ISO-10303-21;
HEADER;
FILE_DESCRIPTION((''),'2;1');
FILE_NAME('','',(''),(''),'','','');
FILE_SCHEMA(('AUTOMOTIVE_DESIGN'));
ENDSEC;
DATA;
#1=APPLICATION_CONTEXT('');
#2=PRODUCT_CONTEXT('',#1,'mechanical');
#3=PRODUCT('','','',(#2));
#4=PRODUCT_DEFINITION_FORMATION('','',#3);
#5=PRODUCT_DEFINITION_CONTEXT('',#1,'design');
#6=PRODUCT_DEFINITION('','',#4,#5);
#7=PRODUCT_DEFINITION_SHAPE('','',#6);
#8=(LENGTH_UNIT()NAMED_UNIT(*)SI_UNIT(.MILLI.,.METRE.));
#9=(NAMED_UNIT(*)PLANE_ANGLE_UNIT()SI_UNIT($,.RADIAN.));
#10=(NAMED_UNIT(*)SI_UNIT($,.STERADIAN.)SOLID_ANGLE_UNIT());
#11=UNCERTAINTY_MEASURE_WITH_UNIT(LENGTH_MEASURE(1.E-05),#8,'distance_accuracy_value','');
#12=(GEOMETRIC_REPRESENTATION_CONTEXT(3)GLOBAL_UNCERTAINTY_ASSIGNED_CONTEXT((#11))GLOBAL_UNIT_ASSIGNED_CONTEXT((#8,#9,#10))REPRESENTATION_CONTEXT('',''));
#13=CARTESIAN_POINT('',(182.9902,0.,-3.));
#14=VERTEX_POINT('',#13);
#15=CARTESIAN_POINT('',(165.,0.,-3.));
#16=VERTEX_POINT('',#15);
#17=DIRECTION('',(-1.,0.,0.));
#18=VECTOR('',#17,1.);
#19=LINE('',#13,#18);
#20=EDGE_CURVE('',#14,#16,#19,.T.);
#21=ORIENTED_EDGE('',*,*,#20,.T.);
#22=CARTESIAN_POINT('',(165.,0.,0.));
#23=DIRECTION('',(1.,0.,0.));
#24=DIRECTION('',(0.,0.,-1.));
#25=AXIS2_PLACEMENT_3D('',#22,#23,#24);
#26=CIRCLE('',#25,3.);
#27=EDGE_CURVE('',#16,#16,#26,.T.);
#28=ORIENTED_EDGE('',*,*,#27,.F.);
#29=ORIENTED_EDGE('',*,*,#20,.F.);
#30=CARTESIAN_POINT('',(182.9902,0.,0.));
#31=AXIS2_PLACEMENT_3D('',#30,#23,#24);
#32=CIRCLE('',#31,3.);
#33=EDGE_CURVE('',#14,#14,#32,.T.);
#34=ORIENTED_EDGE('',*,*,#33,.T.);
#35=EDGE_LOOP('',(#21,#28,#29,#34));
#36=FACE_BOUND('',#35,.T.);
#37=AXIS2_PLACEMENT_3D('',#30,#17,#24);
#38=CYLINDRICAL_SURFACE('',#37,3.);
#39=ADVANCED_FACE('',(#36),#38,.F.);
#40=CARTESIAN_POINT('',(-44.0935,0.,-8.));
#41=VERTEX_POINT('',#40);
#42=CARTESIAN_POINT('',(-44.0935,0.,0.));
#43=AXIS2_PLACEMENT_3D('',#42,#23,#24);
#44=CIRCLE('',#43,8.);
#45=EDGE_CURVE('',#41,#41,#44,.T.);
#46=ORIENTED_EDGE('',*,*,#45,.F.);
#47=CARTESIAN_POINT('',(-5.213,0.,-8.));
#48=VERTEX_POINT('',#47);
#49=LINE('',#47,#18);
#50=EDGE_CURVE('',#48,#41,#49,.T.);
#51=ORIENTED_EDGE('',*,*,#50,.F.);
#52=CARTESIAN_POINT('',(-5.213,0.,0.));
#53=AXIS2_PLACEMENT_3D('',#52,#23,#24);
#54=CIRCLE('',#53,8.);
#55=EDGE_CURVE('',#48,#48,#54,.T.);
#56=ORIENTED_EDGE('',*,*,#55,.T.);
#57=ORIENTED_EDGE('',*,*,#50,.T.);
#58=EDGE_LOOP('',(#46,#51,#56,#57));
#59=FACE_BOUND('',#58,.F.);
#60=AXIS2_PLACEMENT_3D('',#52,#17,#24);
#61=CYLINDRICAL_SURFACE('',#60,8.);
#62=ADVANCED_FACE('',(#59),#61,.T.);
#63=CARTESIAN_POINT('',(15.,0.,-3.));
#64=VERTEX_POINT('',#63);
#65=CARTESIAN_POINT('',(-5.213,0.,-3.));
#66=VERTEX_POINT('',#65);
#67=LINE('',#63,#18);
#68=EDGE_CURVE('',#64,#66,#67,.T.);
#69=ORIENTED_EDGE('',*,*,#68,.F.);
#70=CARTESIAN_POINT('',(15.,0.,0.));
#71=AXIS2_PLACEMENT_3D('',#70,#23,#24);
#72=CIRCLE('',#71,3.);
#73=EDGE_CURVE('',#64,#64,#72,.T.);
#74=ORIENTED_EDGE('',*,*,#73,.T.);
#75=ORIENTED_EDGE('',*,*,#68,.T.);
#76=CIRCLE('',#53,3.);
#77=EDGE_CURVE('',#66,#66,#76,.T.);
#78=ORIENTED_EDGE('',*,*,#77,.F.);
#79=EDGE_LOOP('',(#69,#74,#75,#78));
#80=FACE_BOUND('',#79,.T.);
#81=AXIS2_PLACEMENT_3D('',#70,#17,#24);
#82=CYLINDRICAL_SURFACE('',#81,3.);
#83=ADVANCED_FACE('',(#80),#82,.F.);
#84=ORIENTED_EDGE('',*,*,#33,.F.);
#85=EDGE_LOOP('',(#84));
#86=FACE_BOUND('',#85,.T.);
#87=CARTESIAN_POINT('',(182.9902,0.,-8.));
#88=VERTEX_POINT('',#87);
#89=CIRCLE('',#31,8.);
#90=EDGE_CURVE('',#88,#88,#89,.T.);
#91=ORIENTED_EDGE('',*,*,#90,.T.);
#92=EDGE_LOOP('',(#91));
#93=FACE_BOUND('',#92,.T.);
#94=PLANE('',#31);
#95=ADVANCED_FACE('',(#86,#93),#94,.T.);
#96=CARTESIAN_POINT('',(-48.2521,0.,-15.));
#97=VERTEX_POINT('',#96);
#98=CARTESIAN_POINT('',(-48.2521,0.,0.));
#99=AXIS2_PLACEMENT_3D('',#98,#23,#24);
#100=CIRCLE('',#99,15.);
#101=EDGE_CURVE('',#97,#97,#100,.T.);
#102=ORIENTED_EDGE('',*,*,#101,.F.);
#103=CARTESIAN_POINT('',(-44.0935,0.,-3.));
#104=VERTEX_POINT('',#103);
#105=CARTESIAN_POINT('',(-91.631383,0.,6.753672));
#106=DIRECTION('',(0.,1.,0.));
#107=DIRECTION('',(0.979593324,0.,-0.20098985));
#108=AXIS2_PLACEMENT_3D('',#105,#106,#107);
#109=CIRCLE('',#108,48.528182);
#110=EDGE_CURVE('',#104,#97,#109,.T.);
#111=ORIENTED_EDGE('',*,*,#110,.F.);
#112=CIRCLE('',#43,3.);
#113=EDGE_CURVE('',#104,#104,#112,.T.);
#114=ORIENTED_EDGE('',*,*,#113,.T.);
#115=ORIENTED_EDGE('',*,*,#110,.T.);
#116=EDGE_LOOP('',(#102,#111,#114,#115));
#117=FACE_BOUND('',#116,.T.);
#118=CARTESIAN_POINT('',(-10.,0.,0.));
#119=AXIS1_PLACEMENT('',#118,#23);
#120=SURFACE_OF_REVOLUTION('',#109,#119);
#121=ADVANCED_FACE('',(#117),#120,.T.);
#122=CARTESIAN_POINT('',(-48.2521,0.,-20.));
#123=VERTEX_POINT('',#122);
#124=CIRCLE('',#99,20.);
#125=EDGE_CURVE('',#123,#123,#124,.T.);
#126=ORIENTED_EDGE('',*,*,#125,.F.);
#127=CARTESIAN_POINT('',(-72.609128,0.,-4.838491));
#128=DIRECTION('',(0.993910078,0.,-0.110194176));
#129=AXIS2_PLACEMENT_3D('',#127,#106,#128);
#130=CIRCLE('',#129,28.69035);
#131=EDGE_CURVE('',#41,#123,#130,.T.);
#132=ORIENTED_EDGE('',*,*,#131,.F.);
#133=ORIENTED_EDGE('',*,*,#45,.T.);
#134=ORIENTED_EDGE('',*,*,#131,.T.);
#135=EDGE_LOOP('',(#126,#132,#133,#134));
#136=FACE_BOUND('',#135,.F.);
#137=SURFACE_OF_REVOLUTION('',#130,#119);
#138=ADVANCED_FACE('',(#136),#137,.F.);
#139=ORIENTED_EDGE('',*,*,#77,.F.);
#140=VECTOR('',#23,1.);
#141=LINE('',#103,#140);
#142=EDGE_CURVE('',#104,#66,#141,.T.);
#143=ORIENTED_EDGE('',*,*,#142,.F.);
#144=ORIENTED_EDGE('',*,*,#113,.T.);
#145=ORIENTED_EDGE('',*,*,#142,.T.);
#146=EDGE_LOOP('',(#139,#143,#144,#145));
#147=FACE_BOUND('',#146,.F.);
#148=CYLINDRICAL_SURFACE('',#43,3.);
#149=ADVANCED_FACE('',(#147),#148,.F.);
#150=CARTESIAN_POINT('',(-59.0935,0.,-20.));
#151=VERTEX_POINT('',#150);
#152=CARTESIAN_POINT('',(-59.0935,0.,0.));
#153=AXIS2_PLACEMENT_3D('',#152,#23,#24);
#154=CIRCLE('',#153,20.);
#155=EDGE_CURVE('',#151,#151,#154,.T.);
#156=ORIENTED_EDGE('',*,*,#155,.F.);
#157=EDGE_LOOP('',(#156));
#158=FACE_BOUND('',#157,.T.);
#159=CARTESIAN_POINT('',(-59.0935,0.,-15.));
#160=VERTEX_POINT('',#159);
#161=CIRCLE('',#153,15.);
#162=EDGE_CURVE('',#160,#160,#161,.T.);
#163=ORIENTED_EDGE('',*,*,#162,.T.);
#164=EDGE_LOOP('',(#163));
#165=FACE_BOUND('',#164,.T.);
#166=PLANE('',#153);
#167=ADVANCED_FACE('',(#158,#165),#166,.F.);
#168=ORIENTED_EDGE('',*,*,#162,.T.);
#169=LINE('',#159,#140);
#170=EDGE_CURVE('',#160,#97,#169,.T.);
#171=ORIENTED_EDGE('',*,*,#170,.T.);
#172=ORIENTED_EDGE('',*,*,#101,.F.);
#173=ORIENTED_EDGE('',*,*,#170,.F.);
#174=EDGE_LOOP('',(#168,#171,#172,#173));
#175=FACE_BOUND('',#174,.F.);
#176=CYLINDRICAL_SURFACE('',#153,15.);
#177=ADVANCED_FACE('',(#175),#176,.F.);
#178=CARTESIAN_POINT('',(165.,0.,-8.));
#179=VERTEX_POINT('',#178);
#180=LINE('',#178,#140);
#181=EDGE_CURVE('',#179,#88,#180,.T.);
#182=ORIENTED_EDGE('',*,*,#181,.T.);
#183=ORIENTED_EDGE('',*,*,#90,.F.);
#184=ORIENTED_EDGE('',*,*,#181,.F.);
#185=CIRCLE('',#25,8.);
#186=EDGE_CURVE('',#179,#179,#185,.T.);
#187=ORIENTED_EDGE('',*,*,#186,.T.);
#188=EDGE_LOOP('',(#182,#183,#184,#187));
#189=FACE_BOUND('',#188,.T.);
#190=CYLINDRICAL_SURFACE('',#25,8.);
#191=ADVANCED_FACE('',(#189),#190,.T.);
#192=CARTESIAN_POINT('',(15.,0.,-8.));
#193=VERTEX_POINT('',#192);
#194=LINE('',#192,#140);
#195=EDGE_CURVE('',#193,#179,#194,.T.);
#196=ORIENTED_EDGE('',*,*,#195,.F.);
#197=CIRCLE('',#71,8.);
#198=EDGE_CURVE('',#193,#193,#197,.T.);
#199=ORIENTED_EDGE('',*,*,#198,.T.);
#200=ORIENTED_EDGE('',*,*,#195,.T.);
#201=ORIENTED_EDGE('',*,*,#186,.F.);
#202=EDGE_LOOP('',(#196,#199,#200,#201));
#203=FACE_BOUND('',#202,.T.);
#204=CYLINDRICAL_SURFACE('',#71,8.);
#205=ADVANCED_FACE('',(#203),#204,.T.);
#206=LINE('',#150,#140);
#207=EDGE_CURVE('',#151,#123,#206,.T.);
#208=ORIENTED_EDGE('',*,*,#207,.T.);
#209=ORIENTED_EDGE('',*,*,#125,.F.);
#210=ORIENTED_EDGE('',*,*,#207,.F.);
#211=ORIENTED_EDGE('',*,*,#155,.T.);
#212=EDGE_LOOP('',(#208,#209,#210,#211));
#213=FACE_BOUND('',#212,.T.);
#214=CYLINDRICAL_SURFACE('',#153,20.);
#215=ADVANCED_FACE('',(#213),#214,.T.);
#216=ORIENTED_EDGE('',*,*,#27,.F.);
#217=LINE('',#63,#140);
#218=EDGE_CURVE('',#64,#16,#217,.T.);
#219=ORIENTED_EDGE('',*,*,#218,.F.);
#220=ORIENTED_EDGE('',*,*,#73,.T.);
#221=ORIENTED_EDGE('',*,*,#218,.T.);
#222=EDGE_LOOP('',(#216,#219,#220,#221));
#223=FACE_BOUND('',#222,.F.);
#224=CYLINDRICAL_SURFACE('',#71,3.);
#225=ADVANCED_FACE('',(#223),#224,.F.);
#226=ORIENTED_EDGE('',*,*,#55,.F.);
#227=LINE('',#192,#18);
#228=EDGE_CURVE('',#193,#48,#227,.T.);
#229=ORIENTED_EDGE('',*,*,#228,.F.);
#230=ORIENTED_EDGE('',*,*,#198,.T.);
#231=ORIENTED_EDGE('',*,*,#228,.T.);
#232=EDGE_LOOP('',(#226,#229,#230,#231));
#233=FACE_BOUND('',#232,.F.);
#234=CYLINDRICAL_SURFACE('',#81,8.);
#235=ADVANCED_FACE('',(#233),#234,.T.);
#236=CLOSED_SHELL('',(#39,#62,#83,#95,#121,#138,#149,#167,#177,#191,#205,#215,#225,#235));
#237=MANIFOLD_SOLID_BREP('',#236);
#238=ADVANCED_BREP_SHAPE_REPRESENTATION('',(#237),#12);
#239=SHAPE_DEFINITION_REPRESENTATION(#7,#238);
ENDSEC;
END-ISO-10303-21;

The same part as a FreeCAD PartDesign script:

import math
import FreeCAD as App
import Part
import Sketcher
Q = App.Units.Quantity

doc = App.newDocument("Part")
body = doc.addObject("PartDesign::Body", "Body")

sketch1 = body.newObject("Sketcher::SketchObject", "Sketch")
sketch1.AttachmentSupport = (doc.getObject("XZ_Plane"), [""])
sketch1.MapMode = "FlatFace"
sketch1.addGeometry([
    Part.LineSegment(App.Vector(-44, -3, 0), App.Vector(183, -3, 0)),
    Part.LineSegment(App.Vector(183, -3, 0), App.Vector(183, -8, 0)),
    Part.LineSegment(App.Vector(183, -8, 0), App.Vector(-44, -8, 0)),
    Part.ArcOfCircle(Part.Circle(App.Vector(-73, -5, 0), App.Vector(0, 0, 1), 29), math.radians(-32), math.radians(-6)),
    Part.LineSegment(App.Vector(-48, -20, 0), App.Vector(-59, -20, 0)),
    Part.LineSegment(App.Vector(-59, -20, 0), App.Vector(-59, -15, 0)),
    Part.LineSegment(App.Vector(-59, -15, 0), App.Vector(-48, -15, 0)),
    Part.ArcOfCircle(Part.Circle(App.Vector(-92, 7, 0), App.Vector(0, 0, 1), 49), math.radians(-26.63), math.radians(-11.59)),
], False)
sketch1.addConstraint([
    Sketcher.Constraint("Coincident", 0, 2, 1, 1),
    Sketcher.Constraint("Coincident", 1, 2, 2, 1),
    Sketcher.Constraint("Coincident", 2, 2, 3, 2),
    Sketcher.Constraint("Coincident", 3, 1, 4, 1),
    Sketcher.Constraint("Coincident", 4, 2, 5, 1),
    Sketcher.Constraint("Coincident", 5, 2, 6, 1),
    Sketcher.Constraint("Coincident", 6, 2, 7, 1),
    Sketcher.Constraint("Coincident", 7, 2, 0, 1),
    Sketcher.Constraint("Horizontal", 0),
    Sketcher.Constraint("Vertical", 1),
    Sketcher.Constraint("Horizontal", 2),
    Sketcher.Constraint("Horizontal", 4),
    Sketcher.Constraint("Vertical", 5),
    Sketcher.Constraint("Horizontal", 6),
    Sketcher.Constraint("Vertical", 3, 1, 6, 2),
    Sketcher.Constraint("Vertical", 2, 2, 7, 2),
    Sketcher.Constraint("Equal", 1, 5),
    Sketcher.Constraint("DistanceY", 1, 2, 1, 1, Q("5 mm")),
    Sketcher.Constraint("DistanceY", 0, 2, -1, 1, Q("3 mm")),
    Sketcher.Constraint("DistanceY", 3, 1, -1, 1, Q("20 mm")),
    Sketcher.Constraint("DistanceX", 4, 2, 2, 2, Q("15 mm")),
    Sketcher.Constraint("Radius", 3, Q("28.6894 mm")),
    Sketcher.Constraint("Radius", 7, Q("48.5282 mm")),
    Sketcher.Constraint("DistanceX", 0, 1, 0, 2, Q("227.0837 mm")),
    Sketcher.Constraint("DistanceX", 4, 2, 4, 1, Q("10.8414 mm")),
    Sketcher.Constraint("DistanceX", 6, 2, -1, 1, Q("48.252 mm")),
])
revolution = body.newObject("PartDesign::Revolution", "Revolution")
revolution.Profile = sketch1
revolution.ReferenceAxis = (sketch1, ["H_Axis"])
revolution.Angle = 360

doc.recompute()
